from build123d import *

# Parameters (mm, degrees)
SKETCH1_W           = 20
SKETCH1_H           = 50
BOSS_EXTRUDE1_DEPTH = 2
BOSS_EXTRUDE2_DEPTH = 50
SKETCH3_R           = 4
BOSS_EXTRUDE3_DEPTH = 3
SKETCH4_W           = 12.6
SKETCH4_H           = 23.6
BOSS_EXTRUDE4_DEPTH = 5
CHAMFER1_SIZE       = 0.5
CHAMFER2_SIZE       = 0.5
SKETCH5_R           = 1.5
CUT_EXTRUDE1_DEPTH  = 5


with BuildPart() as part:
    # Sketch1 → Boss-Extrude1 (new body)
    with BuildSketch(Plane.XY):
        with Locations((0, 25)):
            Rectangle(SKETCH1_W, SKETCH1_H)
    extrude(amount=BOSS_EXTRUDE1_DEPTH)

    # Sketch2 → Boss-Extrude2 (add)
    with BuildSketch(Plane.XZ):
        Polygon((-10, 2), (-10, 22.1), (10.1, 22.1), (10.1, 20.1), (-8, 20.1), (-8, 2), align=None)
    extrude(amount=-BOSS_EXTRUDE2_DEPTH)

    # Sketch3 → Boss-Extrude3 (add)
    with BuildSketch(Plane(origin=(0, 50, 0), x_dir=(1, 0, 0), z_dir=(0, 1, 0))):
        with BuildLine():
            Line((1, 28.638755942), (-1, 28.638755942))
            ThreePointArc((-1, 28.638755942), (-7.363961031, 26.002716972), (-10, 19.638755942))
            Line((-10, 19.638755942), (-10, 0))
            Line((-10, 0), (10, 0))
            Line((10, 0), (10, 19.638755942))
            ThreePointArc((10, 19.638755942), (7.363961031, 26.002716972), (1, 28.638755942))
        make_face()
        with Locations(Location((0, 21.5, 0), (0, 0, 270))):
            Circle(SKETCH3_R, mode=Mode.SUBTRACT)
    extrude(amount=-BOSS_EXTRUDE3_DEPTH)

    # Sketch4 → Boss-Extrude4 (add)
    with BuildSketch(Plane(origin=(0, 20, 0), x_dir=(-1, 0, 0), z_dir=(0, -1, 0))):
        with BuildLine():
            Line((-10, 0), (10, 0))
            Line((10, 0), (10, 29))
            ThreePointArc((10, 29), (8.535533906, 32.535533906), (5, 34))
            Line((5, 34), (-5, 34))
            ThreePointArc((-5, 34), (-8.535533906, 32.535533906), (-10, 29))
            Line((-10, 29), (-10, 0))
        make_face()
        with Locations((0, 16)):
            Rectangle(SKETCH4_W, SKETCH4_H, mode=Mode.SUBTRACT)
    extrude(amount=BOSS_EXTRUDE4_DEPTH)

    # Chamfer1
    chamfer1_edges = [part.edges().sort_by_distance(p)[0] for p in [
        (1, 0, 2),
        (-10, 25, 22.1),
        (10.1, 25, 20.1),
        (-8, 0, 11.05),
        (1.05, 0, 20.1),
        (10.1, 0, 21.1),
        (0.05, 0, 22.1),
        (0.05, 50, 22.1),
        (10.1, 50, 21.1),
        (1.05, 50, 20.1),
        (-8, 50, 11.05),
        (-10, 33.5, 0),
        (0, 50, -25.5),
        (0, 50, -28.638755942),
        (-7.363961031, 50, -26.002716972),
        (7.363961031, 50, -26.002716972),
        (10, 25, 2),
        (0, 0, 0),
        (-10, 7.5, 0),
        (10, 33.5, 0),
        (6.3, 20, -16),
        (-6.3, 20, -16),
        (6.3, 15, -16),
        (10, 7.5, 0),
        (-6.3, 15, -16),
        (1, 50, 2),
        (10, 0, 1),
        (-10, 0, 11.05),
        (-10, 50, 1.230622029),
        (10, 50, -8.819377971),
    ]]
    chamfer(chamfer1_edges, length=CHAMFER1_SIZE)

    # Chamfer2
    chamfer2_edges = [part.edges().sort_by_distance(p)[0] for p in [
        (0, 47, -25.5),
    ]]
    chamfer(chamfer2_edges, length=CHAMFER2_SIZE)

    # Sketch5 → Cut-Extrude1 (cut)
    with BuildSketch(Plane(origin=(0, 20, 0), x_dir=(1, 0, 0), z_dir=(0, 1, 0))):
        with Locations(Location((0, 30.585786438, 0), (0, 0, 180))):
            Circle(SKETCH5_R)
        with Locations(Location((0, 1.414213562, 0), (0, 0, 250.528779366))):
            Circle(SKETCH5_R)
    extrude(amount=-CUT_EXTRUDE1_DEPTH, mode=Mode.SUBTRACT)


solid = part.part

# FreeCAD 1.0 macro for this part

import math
import FreeCAD as App
import Part
import Sketcher

V = App.Vector
Q = App.Units.Quantity


def edges_at(feature, points):
    """Names of the edges that pass closest to the given points."""
    edges = feature.Shape.Edges
    near = lambda p: min(range(len(edges)), key=lambda i: edges[i].distToShape(Part.Vertex(*p))[0])
    return sorted({f"Edge{near(p) + 1}" for p in points})

doc = App.newDocument("Part")
body = doc.addObject("PartDesign::Body", "Body")

sketch1 = doc.addObject("Sketcher::SketchObject", "Sketch")
body.addObject(sketch1)
sketch1.AttachmentSupport = (doc.XY_Plane, [""])
sketch1.MapMode = "FlatFace"
sketch1.addGeometry([
    Part.LineSegment(V(-10, 50, 0), V(-10, 0, 0)),
    Part.LineSegment(V(-10, 0, 0), V(10, 0, 0)),
    Part.LineSegment(V(10, 0, 0), V(10, 50, 0)),
    Part.LineSegment(V(10, 50, 0), V(-10, 50, 0)),
], False)
sketch1.addConstraint([
    Sketcher.Constraint("Coincident", 0, 2, 1, 1),
    Sketcher.Constraint("Coincident", 1, 2, 2, 1),
    Sketcher.Constraint("Coincident", 2, 2, 3, 1),
    Sketcher.Constraint("Coincident", 3, 2, 0, 1),
    Sketcher.Constraint("Vertical", 0),
    Sketcher.Constraint("Horizontal", 1),
    Sketcher.Constraint("Vertical", 2),
    Sketcher.Constraint("Horizontal", 3),
    Sketcher.Constraint("Symmetric", 0, 2, 1, 2, -1, 1),
    Sketcher.Constraint("DistanceX", 1, 1, 1, 2, Q("20 mm")),
    Sketcher.Constraint("DistanceY", 0, 2, 0, 1, Q("50 mm")),
])
pad1 = doc.addObject("PartDesign::Pad", "Pad")
body.addObject(pad1)
pad1.Profile = sketch1
pad1.Length = 2

sketch2 = doc.addObject("Sketcher::SketchObject", "Sketch001")
body.addObject(sketch2)
sketch2.AttachmentSupport = (doc.XZ_Plane, [""])
sketch2.MapMode = "FlatFace"
sketch2.addGeometry([
    Part.LineSegment(V(-10, 22.1, 0), V(-10, 2, 0)),
    Part.LineSegment(V(-10, 2, 0), V(-8, 2, 0)),
    Part.LineSegment(V(-8, 2, 0), V(-8, 20.1, 0)),
    Part.LineSegment(V(-8, 20.1, 0), V(10.1, 20.1, 0)),
    Part.LineSegment(V(10.1, 20.1, 0), V(10.1, 22.1, 0)),
    Part.LineSegment(V(10.1, 22.1, 0), V(-10, 22.1, 0)),
], False)
sketch2.addConstraint([
    Sketcher.Constraint("Coincident", 0, 2, 1, 1),
    Sketcher.Constraint("Coincident", 1, 2, 2, 1),
    Sketcher.Constraint("Coincident", 2, 2, 3, 1),
    Sketcher.Constraint("Coincident", 3, 2, 4, 1),
    Sketcher.Constraint("Coincident", 4, 2, 5, 1),
    Sketcher.Constraint("Coincident", 5, 2, 0, 1),
    Sketcher.Constraint("Vertical", 0),
    Sketcher.Constraint("Horizontal", 1),
    Sketcher.Constraint("Vertical", 2),
    Sketcher.Constraint("Horizontal", 3),
    Sketcher.Constraint("Vertical", 4),
    Sketcher.Constraint("Horizontal", 5),
    Sketcher.Constraint("Equal", 5, 0),
    Sketcher.Constraint("Equal", 3, 2),
    Sketcher.Constraint("DistanceX", 1, 1, 1, 2, Q("2 mm")),
    Sketcher.Constraint("DistanceX", 3, 1, 3, 2, Q("18.1 mm")),
    Sketcher.Constraint("DistanceX", 0, 2, -1, 1, Q("10 mm")),
    Sketcher.Constraint("DistanceY", -1, 1, 0, 2, Q("2 mm")),
])
pad2 = doc.addObject("PartDesign::Pad", "Pad001")
body.addObject(pad2)
pad2.Profile = sketch2
pad2.Length = 50
pad2.Reversed = True

sketch3 = doc.addObject("Sketcher::SketchObject", "Sketch002")
body.addObject(sketch3)
sketch3.AttachmentSupport = (doc.XZ_Plane, [""])
sketch3.MapMode = "FlatFace"
sketch3.AttachmentOffset = App.Placement(V(0, 0, -50), App.Rotation())
sketch3.addGeometry([
    Part.LineSegment(V(1, -28.6, 0), V(-1, -28.6, 0)),
    Part.ArcOfCircle(Part.Circle(V(-1, -19.6, 0), V(0, 0, 1), 9), math.radians(-180), math.radians(-90)),
    Part.LineSegment(V(-10, -19.6, 0), V(-10, 0, 0)),
    Part.LineSegment(V(-10, 0, 0), V(10, 0, 0)),
    Part.LineSegment(V(10, 0, 0), V(10, -19.6, 0)),
    Part.ArcOfCircle(Part.Circle(V(1, -19.6, 0), V(0, 0, 1), 9), math.radians(-90), math.radians(0)),
    Part.Circle(V(0, -21.5, 0), V(0, 0, 1), 4),
], False)
sketch3.addConstraint([
    Sketcher.Constraint("Tangent", 0, 2, 1, 2),
    Sketcher.Constraint("Tangent", 1, 1, 2, 1),
    Sketcher.Constraint("Coincident", 2, 2, 3, 1),
    Sketcher.Constraint("Coincident", 3, 2, 4, 1),
    Sketcher.Constraint("Tangent", 4, 2, 5, 2),
    Sketcher.Constraint("Tangent", 5, 1, 0, 1),
    Sketcher.Constraint("Horizontal", 0),
    Sketcher.Constraint("Vertical", 2),
    Sketcher.Constraint("Horizontal", 3),
    Sketcher.Constraint("Vertical", 4),
    Sketcher.Constraint("Equal", 1, 5),
    Sketcher.Constraint("Symmetric", 2, 2, 3, 2, -1, 1),
    Sketcher.Constraint("PointOnObject", 6, 3, -2),
    Sketcher.Constraint("Diameter", 6, Q("8 mm")),
    Sketcher.Constraint("Radius", 1, Q("9 mm")),
    Sketcher.Constraint("DistanceX", 0, 2, 0, 1, Q("2 mm")),
    Sketcher.Constraint("DistanceY", 6, 3, -1, 1, Q("21.5 mm")),
    Sketcher.Constraint("DistanceY", 2, 1, 2, 2, Q("19.638756 mm")),
])
pad3 = doc.addObject("PartDesign::Pad", "Pad002")
body.addObject(pad3)
pad3.Profile = sketch3
pad3.Length = 3

sketch4 = doc.addObject("Sketcher::SketchObject", "Sketch003")
body.addObject(sketch4)
sketch4.AttachmentSupport = (doc.XZ_Plane, [""])
sketch4.MapMode = "FlatFace"
sketch4.AttachmentOffset = App.Placement(V(0, 0, -20), App.Rotation())
sketch4.addGeometry([
    Part.LineSegment(V(10, 0, 0), V(-10, 0, 0)),
    Part.LineSegment(V(-10, 0, 0), V(-10, -29, 0)),
    Part.ArcOfCircle(Part.Circle(V(-5, -29, 0), V(0, 0, 1), 5), math.radians(180), math.radians(270)),
    Part.LineSegment(V(-5, -34, 0), V(5, -34, 0)),
    Part.ArcOfCircle(Part.Circle(V(5, -29, 0), V(0, 0, 1), 5), math.radians(-90), math.radians(0)),
    Part.LineSegment(V(10, -29, 0), V(10, 0, 0)),
    Part.LineSegment(V(-6, -4, 0), V(6, -4, 0)),
    Part.LineSegment(V(6, -4, 0), V(6, -28, 0)),
    Part.LineSegment(V(6, -28, 0), V(-6, -28, 0)),
    Part.LineSegment(V(-6, -28, 0), V(-6, -4, 0)),
], False)
sketch4.addConstraint([
    Sketcher.Constraint("Coincident", 0, 2, 1, 1),
    Sketcher.Constraint("Tangent", 1, 2, 2, 1),
    Sketcher.Constraint("Tangent", 2, 2, 3, 1),
    Sketcher.Constraint("Tangent", 3, 2, 4, 1),
    Sketcher.Constraint("Tangent", 4, 2, 5, 1),
    Sketcher.Constraint("Coincident", 5, 2, 0, 1),
    Sketcher.Constraint("Coincident", 6, 2, 7, 1),
    Sketcher.Constraint("Coincident", 7, 2, 8, 1),
    Sketcher.Constraint("Coincident", 8, 2, 9, 1),
    Sketcher.Constraint("Coincident", 9, 2, 6, 1),
    Sketcher.Constraint("Horizontal", 0),
    Sketcher.Constraint("Vertical", 1),
    Sketcher.Constraint("Horizontal", 3),
    Sketcher.Constraint("Vertical", 5),
    Sketcher.Constraint("Horizontal", 6),
    Sketcher.Constraint("Vertical", 7),
    Sketcher.Constraint("Horizontal", 8),
    Sketcher.Constraint("Vertical", 9),
    Sketcher.Constraint("Equal", 2, 4),
    Sketcher.Constraint("Symmetric", 0, 2, 5, 2, -1, 1),
    Sketcher.Constraint("Radius", 2, Q("5 mm")),
    Sketcher.Constraint("DistanceX", 0, 2, 0, 1, Q("20 mm")),
    Sketcher.Constraint("DistanceY", 1, 2, 1, 1, Q("29 mm")),
    Sketcher.Constraint("DistanceX", 6, 1, 6, 2, Q("12.6 mm")),
    Sketcher.Constraint("DistanceY", 7, 2, 7, 1, Q("23.6 mm")),
    Sketcher.Constraint("DistanceX", -1, 1, 6, 2, Q("6.3 mm")),
    Sketcher.Constraint("DistanceY", 6, 2, -1, 1, Q("4.2 mm")),
])
pad4 = doc.addObject("PartDesign::Pad", "Pad003")
body.addObject(pad4)
pad4.Profile = sketch4
pad4.Length = 5
doc.recompute()

chamfer = doc.addObject("PartDesign::Chamfer", "Chamfer")
body.addObject(chamfer)
chamfer.Base = (pad4, edges_at(pad4, [
    (1, 0, 2),
    (-10, 25, 22.1),
    (10.1, 25, 20.1),
    (-8, 0, 11.05),
    (1.05, 0, 20.1),
    (10.1, 0, 21.1),
    (0.05, 0, 22.1),
    (0.05, 50, 22.1),
    (10.1, 50, 21.1),
    (1.05, 50, 20.1),
    (-8, 50, 11.05),
    (-10, 33.5, 0),
    (0, 50, -25.5),
    (0, 50, -28.639),
    (-7.364, 50, -26.003),
    (7.364, 50, -26.003),
    (10, 25, 2),
    (0, 0, 0),
    (-10, 7.5, 0),
    (10, 33.5, 0),
    (6.3, 20, -16),
    (-6.3, 20, -16),
    (6.3, 15, -16),
    (10, 7.5, 0),
    (-6.3, 15, -16),
    (1, 50, 2),
    (10, 0, 1),
    (-10, 0, 11.05),
    (-10, 50, 1.231),
    (10, 50, -8.819),
]))
chamfer.Size = 0.5
doc.recompute()

chamfer2 = doc.addObject("PartDesign::Chamfer", "Chamfer001")
body.addObject(chamfer2)
chamfer2.Base = (chamfer, edges_at(chamfer, [(0, 47, -25.5)]))
chamfer2.Size = 0.5

sketch5 = doc.addObject("Sketcher::SketchObject", "Sketch004")
body.addObject(sketch5)
sketch5.AttachmentSupport = (doc.XZ_Plane, [""])
sketch5.MapMode = "FlatFace"
sketch5.AttachmentOffset = App.Placement(V(0, 0, -20), App.Rotation())
sketch5.addGeometry([
    Part.Circle(V(0, -30.6, 0), V(0, 0, 1), 1.5),
    Part.Circle(V(0, -1.4, 0), V(0, 0, 1), 1.5),
], False)
sketch5.addConstraint([
    Sketcher.Constraint("Equal", 0, 1),
    Sketcher.Constraint("PointOnObject", 0, 3, -2),
    Sketcher.Constraint("PointOnObject", 1, 3, -2),
    Sketcher.Constraint("Diameter", 0, Q("3 mm")),
    Sketcher.Constraint("DistanceY", 0, 3, -1, 1, Q("30.585786 mm")),
    Sketcher.Constraint("DistanceY", 1, 3, -1, 1, Q("1.414214 mm")),
])
pocket1 = doc.addObject("PartDesign::Pocket", "Pocket")
body.addObject(pocket1)
pocket1.Profile = sketch5
pocket1.Length = 5
pocket1.Reversed = True

doc.recompute()
